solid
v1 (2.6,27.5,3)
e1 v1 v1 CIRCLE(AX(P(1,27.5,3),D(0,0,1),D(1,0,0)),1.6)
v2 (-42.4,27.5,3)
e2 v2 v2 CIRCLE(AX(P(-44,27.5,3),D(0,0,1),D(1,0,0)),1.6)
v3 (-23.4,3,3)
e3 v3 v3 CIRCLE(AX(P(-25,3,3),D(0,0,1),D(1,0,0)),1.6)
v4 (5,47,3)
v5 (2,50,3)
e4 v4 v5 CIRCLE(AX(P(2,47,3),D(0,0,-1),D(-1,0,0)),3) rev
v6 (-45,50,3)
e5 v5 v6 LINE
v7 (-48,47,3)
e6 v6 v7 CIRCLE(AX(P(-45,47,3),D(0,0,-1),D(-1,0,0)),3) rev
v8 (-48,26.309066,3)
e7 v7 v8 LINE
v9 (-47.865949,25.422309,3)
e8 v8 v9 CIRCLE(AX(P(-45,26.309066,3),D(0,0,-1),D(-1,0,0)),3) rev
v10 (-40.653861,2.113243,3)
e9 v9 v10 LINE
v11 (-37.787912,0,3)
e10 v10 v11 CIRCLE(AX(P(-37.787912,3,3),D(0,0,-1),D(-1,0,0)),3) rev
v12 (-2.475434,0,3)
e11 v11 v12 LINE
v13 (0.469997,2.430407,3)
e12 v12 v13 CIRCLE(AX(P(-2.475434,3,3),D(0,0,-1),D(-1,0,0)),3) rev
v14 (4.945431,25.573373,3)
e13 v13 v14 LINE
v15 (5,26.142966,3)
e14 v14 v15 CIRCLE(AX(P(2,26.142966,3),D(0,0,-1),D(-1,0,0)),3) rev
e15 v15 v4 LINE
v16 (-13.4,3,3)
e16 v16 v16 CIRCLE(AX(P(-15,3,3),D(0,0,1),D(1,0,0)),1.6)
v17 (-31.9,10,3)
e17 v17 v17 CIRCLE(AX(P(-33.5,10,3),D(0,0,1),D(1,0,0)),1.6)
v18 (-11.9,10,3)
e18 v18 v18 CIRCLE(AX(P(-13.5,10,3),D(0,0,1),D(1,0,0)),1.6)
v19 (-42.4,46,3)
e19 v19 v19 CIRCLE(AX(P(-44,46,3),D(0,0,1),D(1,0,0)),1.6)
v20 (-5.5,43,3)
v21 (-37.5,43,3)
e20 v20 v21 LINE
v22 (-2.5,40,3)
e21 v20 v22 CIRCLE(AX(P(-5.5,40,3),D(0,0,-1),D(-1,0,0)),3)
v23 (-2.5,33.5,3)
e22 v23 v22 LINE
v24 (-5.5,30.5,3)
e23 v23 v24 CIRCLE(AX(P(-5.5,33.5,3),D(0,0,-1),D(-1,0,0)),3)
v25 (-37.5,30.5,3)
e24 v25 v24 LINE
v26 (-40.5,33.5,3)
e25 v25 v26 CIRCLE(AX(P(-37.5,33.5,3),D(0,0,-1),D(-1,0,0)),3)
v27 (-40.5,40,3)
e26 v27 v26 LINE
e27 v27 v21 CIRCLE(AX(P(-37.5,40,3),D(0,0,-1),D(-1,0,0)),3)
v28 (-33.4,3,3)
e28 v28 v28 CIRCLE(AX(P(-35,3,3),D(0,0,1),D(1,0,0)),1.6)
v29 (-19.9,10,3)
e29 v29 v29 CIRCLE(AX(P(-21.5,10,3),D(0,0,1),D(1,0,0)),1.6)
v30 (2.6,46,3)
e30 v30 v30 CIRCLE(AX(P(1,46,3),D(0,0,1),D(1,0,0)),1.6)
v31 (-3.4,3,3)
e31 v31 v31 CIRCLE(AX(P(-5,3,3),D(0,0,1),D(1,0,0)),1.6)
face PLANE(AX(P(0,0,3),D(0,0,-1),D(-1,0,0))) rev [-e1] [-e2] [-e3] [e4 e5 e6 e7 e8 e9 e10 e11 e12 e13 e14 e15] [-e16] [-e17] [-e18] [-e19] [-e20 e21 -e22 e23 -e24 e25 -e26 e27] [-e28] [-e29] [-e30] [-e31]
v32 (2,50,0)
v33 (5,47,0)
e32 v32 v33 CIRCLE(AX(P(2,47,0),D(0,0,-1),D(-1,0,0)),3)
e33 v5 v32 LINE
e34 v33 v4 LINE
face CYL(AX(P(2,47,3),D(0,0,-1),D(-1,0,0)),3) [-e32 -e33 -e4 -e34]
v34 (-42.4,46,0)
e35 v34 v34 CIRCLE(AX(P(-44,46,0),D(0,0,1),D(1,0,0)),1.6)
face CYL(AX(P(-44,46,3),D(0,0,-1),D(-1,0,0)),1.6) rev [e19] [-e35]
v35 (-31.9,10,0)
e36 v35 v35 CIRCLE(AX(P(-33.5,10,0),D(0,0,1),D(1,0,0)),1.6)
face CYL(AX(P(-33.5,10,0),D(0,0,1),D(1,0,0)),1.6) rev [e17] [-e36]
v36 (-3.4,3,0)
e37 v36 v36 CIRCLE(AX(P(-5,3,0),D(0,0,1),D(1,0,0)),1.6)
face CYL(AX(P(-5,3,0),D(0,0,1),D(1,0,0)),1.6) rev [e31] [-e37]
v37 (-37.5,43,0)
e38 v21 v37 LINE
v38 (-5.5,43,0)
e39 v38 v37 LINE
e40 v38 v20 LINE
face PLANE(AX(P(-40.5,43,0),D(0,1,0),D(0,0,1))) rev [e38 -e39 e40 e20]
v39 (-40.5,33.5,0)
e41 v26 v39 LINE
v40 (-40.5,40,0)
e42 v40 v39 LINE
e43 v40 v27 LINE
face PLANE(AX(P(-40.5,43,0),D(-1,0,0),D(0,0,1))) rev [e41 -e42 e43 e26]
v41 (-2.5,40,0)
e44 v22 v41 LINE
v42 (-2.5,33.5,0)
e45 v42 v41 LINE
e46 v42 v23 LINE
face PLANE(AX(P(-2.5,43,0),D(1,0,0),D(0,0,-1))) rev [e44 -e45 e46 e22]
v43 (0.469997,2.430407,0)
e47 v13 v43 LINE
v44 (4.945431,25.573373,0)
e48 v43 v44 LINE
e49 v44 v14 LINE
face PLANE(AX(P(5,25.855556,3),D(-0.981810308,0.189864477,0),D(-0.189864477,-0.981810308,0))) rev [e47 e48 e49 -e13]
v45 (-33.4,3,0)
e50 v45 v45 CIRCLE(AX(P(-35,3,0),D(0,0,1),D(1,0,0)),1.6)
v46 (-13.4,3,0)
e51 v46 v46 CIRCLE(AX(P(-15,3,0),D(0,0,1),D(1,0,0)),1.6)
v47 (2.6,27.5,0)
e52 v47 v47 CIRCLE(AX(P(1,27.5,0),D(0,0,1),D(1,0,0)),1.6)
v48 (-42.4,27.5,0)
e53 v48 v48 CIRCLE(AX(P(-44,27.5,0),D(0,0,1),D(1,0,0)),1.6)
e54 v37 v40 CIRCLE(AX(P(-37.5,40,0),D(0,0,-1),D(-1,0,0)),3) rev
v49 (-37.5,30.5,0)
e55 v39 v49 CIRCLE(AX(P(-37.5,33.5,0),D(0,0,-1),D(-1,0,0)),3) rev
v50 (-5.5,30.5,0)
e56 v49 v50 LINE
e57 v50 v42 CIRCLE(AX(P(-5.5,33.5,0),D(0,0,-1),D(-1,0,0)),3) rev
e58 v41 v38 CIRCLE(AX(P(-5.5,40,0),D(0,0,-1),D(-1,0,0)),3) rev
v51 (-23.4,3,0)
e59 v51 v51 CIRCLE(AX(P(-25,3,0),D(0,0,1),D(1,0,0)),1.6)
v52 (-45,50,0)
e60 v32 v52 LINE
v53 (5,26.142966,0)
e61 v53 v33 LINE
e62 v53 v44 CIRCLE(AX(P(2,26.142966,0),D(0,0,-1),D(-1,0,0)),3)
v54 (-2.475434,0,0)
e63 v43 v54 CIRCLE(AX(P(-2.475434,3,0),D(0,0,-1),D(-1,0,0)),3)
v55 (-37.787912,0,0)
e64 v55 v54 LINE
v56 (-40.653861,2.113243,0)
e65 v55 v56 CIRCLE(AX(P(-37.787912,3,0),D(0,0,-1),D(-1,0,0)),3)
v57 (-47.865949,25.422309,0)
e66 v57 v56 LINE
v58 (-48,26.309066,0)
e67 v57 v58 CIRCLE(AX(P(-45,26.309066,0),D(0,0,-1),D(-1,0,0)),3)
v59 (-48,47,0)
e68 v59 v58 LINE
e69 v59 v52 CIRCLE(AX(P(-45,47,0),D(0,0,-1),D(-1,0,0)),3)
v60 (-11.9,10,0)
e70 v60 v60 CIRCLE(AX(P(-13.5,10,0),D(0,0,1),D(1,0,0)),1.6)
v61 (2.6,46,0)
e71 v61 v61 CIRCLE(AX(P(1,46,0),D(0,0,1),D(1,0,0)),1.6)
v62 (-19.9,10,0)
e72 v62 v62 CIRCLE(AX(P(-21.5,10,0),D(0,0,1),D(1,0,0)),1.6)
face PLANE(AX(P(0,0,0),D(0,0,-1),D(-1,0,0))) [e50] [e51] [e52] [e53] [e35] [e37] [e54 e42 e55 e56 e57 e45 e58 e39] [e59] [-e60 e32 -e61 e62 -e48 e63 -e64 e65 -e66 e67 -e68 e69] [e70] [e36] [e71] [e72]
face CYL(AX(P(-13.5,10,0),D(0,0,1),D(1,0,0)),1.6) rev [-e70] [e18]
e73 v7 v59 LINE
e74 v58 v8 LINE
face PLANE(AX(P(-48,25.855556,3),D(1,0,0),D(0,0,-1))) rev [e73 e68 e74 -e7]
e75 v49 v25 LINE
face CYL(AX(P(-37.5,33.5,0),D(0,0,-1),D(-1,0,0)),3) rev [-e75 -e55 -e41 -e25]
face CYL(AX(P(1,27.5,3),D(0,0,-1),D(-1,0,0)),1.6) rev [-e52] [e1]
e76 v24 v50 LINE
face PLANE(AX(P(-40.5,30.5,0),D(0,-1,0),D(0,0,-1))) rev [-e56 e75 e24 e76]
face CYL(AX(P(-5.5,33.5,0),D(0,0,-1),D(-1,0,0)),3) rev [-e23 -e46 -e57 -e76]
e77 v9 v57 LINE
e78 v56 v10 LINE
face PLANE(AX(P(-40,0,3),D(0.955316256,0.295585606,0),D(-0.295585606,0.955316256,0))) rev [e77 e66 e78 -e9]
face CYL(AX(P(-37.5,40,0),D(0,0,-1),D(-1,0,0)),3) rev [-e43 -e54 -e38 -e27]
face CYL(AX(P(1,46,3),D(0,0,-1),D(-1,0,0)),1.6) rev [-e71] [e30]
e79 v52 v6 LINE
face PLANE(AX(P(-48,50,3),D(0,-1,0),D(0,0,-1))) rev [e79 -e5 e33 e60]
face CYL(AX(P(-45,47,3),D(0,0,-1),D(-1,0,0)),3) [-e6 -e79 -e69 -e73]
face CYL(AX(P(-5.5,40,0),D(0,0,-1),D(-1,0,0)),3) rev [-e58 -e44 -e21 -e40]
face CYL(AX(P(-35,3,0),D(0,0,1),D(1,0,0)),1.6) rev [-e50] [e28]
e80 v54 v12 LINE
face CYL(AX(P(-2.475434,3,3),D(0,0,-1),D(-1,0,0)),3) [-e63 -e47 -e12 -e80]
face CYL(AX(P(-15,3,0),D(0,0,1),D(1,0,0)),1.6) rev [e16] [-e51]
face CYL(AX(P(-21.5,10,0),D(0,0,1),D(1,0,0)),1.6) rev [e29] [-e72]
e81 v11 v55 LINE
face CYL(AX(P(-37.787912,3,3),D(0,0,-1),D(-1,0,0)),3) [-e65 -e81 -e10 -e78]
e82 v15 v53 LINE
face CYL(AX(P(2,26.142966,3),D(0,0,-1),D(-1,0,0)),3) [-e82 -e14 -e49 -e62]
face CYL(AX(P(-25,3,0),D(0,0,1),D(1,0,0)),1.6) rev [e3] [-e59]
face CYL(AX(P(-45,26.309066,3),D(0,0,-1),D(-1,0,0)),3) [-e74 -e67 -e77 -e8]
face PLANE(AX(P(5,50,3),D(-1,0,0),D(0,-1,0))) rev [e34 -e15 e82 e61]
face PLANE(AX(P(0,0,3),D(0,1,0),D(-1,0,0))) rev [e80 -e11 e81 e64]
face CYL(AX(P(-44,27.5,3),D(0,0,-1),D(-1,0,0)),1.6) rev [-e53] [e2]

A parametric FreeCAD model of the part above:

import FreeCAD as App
import Part
import Sketcher
from FreeCAD import Vector


def edges_at(feature, points):
    """Names of the edges that pass closest to the given points."""
    edges = feature.Shape.Edges
    near = lambda p: min(range(len(edges)), key=lambda i: edges[i].distToShape(Part.Vertex(*p))[0])
    return sorted({f"Edge{near(p) + 1}" for p in points})


def add_polygon(sketch, points):
    """Adds a closed chain of lines whose ends are joined by coincident constraints."""
    first, n = sketch.GeometryCount, len(points)
    for a, b in zip(points, points[1:] + points[:1]):
        sketch.addGeometry(Part.LineSegment(App.Vector(*a, 0), App.Vector(*b, 0)), False)
    for i in range(n):
        sketch.addConstraint(Sketcher.Constraint("Coincident", first + i, 2, first + (i + 1) % n, 1))

doc = App.newDocument("Part")
body = doc.addObject("PartDesign::Body", "Body")

# Sketch on XY plane
sketch1 = body.newObject("Sketcher::SketchObject", "Sketch")
sketch1.AttachmentSupport = (doc.getObject("XY_Plane"), [""])
sketch1.MapMode = "FlatFace"
add_polygon(sketch1, [(-48, 25.855556), (-40, 0), (0, 0), (5, 25.855556), (5, 50), (-48, 50)])  # lines 0-5
sketch1.addGeometry(Part.Circle(Vector(1, 27.5, 0), Vector(0, 0, 1), 1.6), False)  # 6
sketch1.addGeometry(Part.Circle(Vector(-44, 27.5, 0), Vector(0, 0, 1), 1.6), False)  # 7
sketch1.addGeometry(Part.Circle(Vector(1, 46, 0), Vector(0, 0, 1), 1.6), False)  # 8
sketch1.addGeometry(Part.Circle(Vector(-44, 46, 0), Vector(0, 0, 1), 1.6), False)  # 9
sketch1.addConstraint(Sketcher.Constraint("Horizontal", 1))
sketch1.addConstraint(Sketcher.Constraint("Vertical", 3))
sketch1.addConstraint(Sketcher.Constraint("Horizontal", 4))
sketch1.addConstraint(Sketcher.Constraint("Vertical", 5))
sketch1.addConstraint(Sketcher.Constraint("Coincident", 1, 2, -1, 1))
sketch1.addConstraint(Sketcher.Constraint("Equal", 6, 7))
sketch1.addConstraint(Sketcher.Constraint("Equal", 7, 8))
sketch1.addConstraint(Sketcher.Constraint("Equal", 8, 9))
sketch1.addConstraint(Sketcher.Constraint("Horizontal", 6, 3, 7, 3))
sketch1.addConstraint(Sketcher.Constraint("Horizontal", 8, 3, 9, 3))
sketch1.addConstraint(Sketcher.Constraint("Horizontal", 2, 2, 5, 2))
sketch1.addConstraint(Sketcher.Constraint("Vertical", 6, 3, 8, 3))
sketch1.addConstraint(Sketcher.Constraint("Vertical", 7, 3, 9, 3))
sketch1.addConstraint(Sketcher.Constraint("Diameter", 6, 3.2))
sketch1.addConstraint(Sketcher.Constraint("DistanceX", 1, 1, 1, 2, 40.0))
sketch1.addConstraint(Sketcher.Constraint("DistanceX", 4, 2, 4, 1, 53.0))
sketch1.addConstraint(Sketcher.Constraint("DistanceX", -1, 1, 6, 3, 1.0))
sketch1.addConstraint(Sketcher.Constraint("DistanceX", 7, 3, -1, 1, 44.0))
sketch1.addConstraint(Sketcher.Constraint("DistanceY", -1, 1, 8, 3, 46.0))
sketch1.addConstraint(Sketcher.Constraint("DistanceX", -1, 1, 2, 2, 5.0))
sketch1.addConstraint(Sketcher.Constraint("DistanceY", -1, 1, 3, 2, 50.0))
sketch1.addConstraint(Sketcher.Constraint("DistanceY", -1, 1, 6, 3, 27.5))
sketch1.addConstraint(Sketcher.Constraint("DistanceY", 3, 1, 3, 2, 24.144444))
pad1 = body.newObject("PartDesign::Pad", "Pad")
pad1.Profile = sketch1
pad1.Length = 3

# Sketch on XY plane
sketch2 = body.newObject("Sketcher::SketchObject", "Sketch001")
sketch2.AttachmentSupport = (doc.getObject("XY_Plane"), [""])
sketch2.MapMode = "FlatFace"
sketch2.AttachmentOffset = App.Placement(Vector(0, 0, 3), App.Rotation())
sketch2.addGeometry(Part.Circle(Vector(-5, 3, 0), Vector(0, 0, 1), 1.6), False)
sketch2.addGeometry(Part.Circle(Vector(-15, 3, 0), Vector(0, 0, 1), 1.6), False)
sketch2.addGeometry(Part.Circle(Vector(-25, 3, 0), Vector(0, 0, 1), 1.6), False)
sketch2.addGeometry(Part.Circle(Vector(-35, 3, 0), Vector(0, 0, 1), 1.6), False)
sketch2.addConstraint(Sketcher.Constraint("Equal", 0, 1))
sketch2.addConstraint(Sketcher.Constraint("Equal", 1, 2))
sketch2.addConstraint(Sketcher.Constraint("Equal", 2, 3))
sketch2.addConstraint(Sketcher.Constraint("Horizontal", 0, 3, 1, 3))
sketch2.addConstraint(Sketcher.Constraint("Horizontal", 1, 3, 2, 3))
sketch2.addConstraint(Sketcher.Constraint("Horizontal", 2, 3, 3, 3))
sketch2.addConstraint(Sketcher.Constraint("Diameter", 0, 3.2))
sketch2.addConstraint(Sketcher.Constraint("DistanceX", 0, 3, -1, 1, 5.0))
sketch2.addConstraint(Sketcher.Constraint("DistanceY", -1, 1, 0, 3, 3.0))
sketch2.addConstraint(Sketcher.Constraint("DistanceX", 1, 3, -1, 1, 15.0))
sketch2.addConstraint(Sketcher.Constraint("DistanceX", 2, 3, -1, 1, 25.0))
sketch2.addConstraint(Sketcher.Constraint("DistanceX", 3, 3, -1, 1, 35.0))
pocket1 = body.newObject("PartDesign::Pocket", "Pocket")
pocket1.Profile = sketch2
pocket1.Type = "ThroughAll"

# Sketch on XY plane
sketch3 = body.newObject("Sketcher::SketchObject", "Sketch002")
sketch3.AttachmentSupport = (doc.getObject("XY_Plane"), [""])
sketch3.MapMode = "FlatFace"
sketch3.AttachmentOffset = App.Placement(Vector(0, 0, 3), App.Rotation())
sketch3.addGeometry(Part.Circle(Vector(-13.5, 10, 0), Vector(0, 0, 1), 1.6), False)
sketch3.addGeometry(Part.Circle(Vector(-21.5, 10, 0), Vector(0, 0, 1), 1.6), False)
sketch3.addGeometry(Part.Circle(Vector(-33.5, 10, 0), Vector(0, 0, 1), 1.6), False)
sketch3.addGeometry(Part.Circle(Vector(-21.5, 34, 0), Vector(0, 0, 1), 1.6), False)
sketch3.addConstraint(Sketcher.Constraint("Equal", 0, 1))
sketch3.addConstraint(Sketcher.Constraint("Equal", 1, 2))
sketch3.addConstraint(Sketcher.Constraint("Equal", 2, 3))
sketch3.addConstraint(Sketcher.Constraint("Horizontal", 0, 3, 1, 3))
sketch3.addConstraint(Sketcher.Constraint("Horizontal", 1, 3, 2, 3))
sketch3.addConstraint(Sketcher.Constraint("Vertical", 1, 3, 3, 3))
sketch3.addConstraint(Sketcher.Constraint("Diameter", 0, 3.2))
sketch3.addConstraint(Sketcher.Constraint("DistanceY", -1, 1, 0, 3, 10.0))
sketch3.addConstraint(Sketcher.Constraint("DistanceY", -1, 1, 3, 3, 34.0))
sketch3.addConstraint(Sketcher.Constraint("DistanceX", 1, 3, 0, 3, 8.0))
sketch3.addConstraint(Sketcher.Constraint("DistanceX", 2, 3, 1, 3, 12.0))
sketch3.addConstraint(Sketcher.Constraint("DistanceX", 0, 3, -1, 1, 13.5))
pocket2 = body.newObject("PartDesign::Pocket", "Pocket001")
pocket2.Profile = sketch3
pocket2.Type = "ThroughAll"

# Sketch on XY plane
sketch4 = body.newObject("Sketcher::SketchObject", "Sketch003")
sketch4.AttachmentSupport = (doc.getObject("XY_Plane"), [""])
sketch4.MapMode = "FlatFace"
sketch4.AttachmentOffset = App.Placement(Vector(0, 0, 3), App.Rotation())
add_polygon(sketch4, [(-40.5, 43), (-40.5, 30.5), (-2.5, 30.5), (-2.5, 43)])  # lines 0-3
sketch4.addConstraint(Sketcher.Constraint("Vertical", 0))
sketch4.addConstraint(Sketcher.Constraint("Horizontal", 1))
sketch4.addConstraint(Sketcher.Constraint("Vertical", 2))
sketch4.addConstraint(Sketcher.Constraint("Horizontal", 3))
sketch4.addConstraint(Sketcher.Constraint("DistanceX", 1, 1, 1, 2, 38.0))
sketch4.addConstraint(Sketcher.Constraint("DistanceY", 0, 2, 0, 1, 12.5))
sketch4.addConstraint(Sketcher.Constraint("DistanceY", -1, 1, 2, 2, 43.0))
sketch4.addConstraint(Sketcher.Constraint("DistanceX", 0, 2, -1, 1, 40.5))
pocket3 = body.newObject("PartDesign::Pocket", "Pocket002")
pocket3.Profile = sketch4
pocket3.Type = "ThroughAll"
doc.recompute()

fillet = body.newObject("PartDesign::Fillet", "Fillet")
fillet.Base = (pocket3, edges_at(pocket3, [
    (0, 0, 1.5),
    (-40, 0, 1.5),
    (-48, 25.856, 1.5),
    (-48, 50, 1.5),
    (5, 50, 1.5),
    (5, 25.856, 1.5),
    (-2.5, 43, 1.5),
    (-2.5, 30.5, 1.5),
    (-40.5, 30.5, 1.5),
    (-40.5, 43, 1.5),
]))
fillet.Radius = 3

doc.recompute()
